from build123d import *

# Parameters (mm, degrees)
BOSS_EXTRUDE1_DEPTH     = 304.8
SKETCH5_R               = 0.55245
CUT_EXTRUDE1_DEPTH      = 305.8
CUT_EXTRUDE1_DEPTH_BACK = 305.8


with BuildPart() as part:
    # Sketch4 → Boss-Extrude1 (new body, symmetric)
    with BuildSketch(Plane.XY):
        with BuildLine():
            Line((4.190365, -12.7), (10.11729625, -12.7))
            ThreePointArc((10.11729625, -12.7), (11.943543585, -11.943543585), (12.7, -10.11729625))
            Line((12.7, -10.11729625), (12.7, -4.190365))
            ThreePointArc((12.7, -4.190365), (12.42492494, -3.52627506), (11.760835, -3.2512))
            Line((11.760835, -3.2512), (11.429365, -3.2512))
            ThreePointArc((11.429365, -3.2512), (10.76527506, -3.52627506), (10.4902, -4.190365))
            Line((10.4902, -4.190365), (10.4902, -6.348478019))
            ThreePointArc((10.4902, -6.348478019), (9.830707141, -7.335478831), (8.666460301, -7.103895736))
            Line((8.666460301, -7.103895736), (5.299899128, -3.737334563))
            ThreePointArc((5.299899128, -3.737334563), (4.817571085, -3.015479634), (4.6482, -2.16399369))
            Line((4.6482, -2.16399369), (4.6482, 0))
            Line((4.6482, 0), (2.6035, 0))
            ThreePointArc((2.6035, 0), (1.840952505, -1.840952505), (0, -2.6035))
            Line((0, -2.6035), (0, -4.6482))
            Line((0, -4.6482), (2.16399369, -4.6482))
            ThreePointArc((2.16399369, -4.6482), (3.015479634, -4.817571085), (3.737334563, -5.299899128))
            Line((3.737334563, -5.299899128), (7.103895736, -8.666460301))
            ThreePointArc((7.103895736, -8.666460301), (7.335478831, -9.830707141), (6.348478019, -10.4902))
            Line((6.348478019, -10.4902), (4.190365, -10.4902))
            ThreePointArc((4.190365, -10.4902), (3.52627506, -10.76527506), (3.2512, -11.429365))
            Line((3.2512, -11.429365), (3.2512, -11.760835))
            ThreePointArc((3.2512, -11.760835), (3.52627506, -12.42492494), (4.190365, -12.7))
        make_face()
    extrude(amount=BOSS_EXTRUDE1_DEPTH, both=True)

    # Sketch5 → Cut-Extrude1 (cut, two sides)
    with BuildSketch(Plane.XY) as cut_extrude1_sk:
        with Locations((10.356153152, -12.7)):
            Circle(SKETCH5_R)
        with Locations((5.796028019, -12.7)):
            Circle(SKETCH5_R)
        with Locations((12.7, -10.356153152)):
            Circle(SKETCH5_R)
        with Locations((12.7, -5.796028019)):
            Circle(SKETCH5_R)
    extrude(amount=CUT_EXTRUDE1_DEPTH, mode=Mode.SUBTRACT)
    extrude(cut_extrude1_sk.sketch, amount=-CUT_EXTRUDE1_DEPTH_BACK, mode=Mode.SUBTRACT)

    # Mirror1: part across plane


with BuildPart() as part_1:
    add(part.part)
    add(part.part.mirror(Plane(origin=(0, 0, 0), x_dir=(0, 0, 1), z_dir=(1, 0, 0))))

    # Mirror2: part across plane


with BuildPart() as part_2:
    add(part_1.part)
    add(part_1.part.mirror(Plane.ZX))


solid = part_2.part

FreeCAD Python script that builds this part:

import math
import FreeCAD as App
import Part
import Sketcher
Q = App.Units.Quantity

doc = App.newDocument("Part")
body = doc.addObject("PartDesign::Body", "Body")

# Sketch on XY plane
sketch1 = doc.addObject("Sketcher::SketchObject", "Sketch")
body.addObject(sketch1)
sketch1.AttachmentSupport = (doc.XY_Plane, [""])
sketch1.MapMode = "FlatFace"
sketch1.addGeometry([
    Part.LineSegment(App.Vector(4.190365, -12.7, 0), App.Vector(10.117296, -12.7, 0)),  # 0
    Part.ArcOfCircle(Part.Circle(App.Vector(10.117296, -10.117296, 0), App.Vector(0, 0, 1), 2.582704), math.radians(-90), math.radians(0)),  # 1
    Part.LineSegment(App.Vector(12.7, -10.117296, 0), App.Vector(12.7, -4.190365, 0)),  # 2
    Part.ArcOfCircle(Part.Circle(App.Vector(11.760835, -4.190365, 0), App.Vector(0, 0, 1), 0.939165), math.radians(0), math.radians(90)),  # 3
    Part.LineSegment(App.Vector(11.760835, -3.2512, 0), App.Vector(11.429365, -3.2512, 0)),  # 4
    Part.ArcOfCircle(Part.Circle(App.Vector(11.429365, -4.190365, 0), App.Vector(0, 0, 1), 0.939165), math.radians(90), math.radians(180)),  # 5
    Part.LineSegment(App.Vector(10.4902, -4.190365, 0), App.Vector(10.4902, -6.348478, 0)),  # 6
    Part.ArcOfCircle(Part.Circle(App.Vector(9.421878, -6.348478, 0), App.Vector(0, 0, 1), 1.068322), math.radians(-135), math.radians(0)),  # 7
    Part.LineSegment(App.Vector(8.66646, -7.103896, 0), App.Vector(5.299899, -3.737335, 0)),  # 8
    Part.ArcOfCircle(Part.Circle(App.Vector(6.87324, -2.163994, 0), App.Vector(0, 0, 1), 2.22504), math.radians(-180), math.radians(-135)),  # 9
    Part.LineSegment(App.Vector(4.6482, -2.163994, 0), App.Vector(4.6482, 0, 0)),  # 10
    Part.LineSegment(App.Vector(4.6482, 0, 0), App.Vector(2.6035, 0, 0)),  # 11
    Part.ArcOfCircle(Part.Circle(App.Vector(0, 0, 0), App.Vector(0, 0, 1), 2.6035), math.radians(-90), math.radians(0)),  # 12
    Part.LineSegment(App.Vector(0, -2.6035, 0), App.Vector(0, -4.6482, 0)),  # 13
    Part.LineSegment(App.Vector(0, -4.6482, 0), App.Vector(2.163994, -4.6482, 0)),  # 14
    Part.ArcOfCircle(Part.Circle(App.Vector(2.163994, -6.87324, 0), App.Vector(0, 0, 1), 2.22504), math.radians(45), math.radians(90)),  # 15
    Part.LineSegment(App.Vector(3.737335, -5.299899, 0), App.Vector(7.103896, -8.66646, 0)),  # 16
    Part.ArcOfCircle(Part.Circle(App.Vector(6.348478, -9.421878, 0), App.Vector(0, 0, 1), 1.068322), math.radians(-90), math.radians(45)),  # 17
    Part.LineSegment(App.Vector(6.348478, -10.4902, 0), App.Vector(4.190365, -10.4902, 0)),  # 18
    Part.ArcOfCircle(Part.Circle(App.Vector(4.190365, -11.429365, 0), App.Vector(0, 0, 1), 0.939165), math.radians(90), math.radians(180)),  # 19
    Part.LineSegment(App.Vector(3.2512, -11.429365, 0), App.Vector(3.2512, -11.760835, 0)),  # 20
    Part.ArcOfCircle(Part.Circle(App.Vector(4.190365, -11.760835, 0), App.Vector(0, 0, 1), 0.939165), math.radians(-180), math.radians(-90)),  # 21
], False)
sketch1.addConstraint([
    Sketcher.Constraint("Tangent", 0, 2, 1, 1),
    Sketcher.Constraint("Tangent", 1, 2, 2, 1),
    Sketcher.Constraint("Tangent", 2, 2, 3, 1),
    Sketcher.Constraint("Tangent", 3, 2, 4, 1),
    Sketcher.Constraint("Tangent", 4, 2, 5, 1),
    Sketcher.Constraint("Tangent", 5, 2, 6, 1),
    Sketcher.Constraint("Tangent", 6, 2, 7, 2),
    Sketcher.Constraint("Tangent", 7, 1, 8, 1),
    Sketcher.Constraint("Tangent", 8, 2, 9, 2),
    Sketcher.Constraint("Tangent", 9, 1, 10, 1),
    Sketcher.Constraint("Coincident", 10, 2, 11, 1),
    Sketcher.Constraint("Coincident", 11, 2, 12, 2),
    Sketcher.Constraint("Coincident", 12, 1, 13, 1),
    Sketcher.Constraint("Coincident", 13, 2, 14, 1),
    Sketcher.Constraint("Tangent", 14, 2, 15, 2),
    Sketcher.Constraint("Tangent", 15, 1, 16, 1),
    Sketcher.Constraint("Tangent", 16, 2, 17, 2),
    Sketcher.Constraint("Tangent", 17, 1, 18, 1),
    Sketcher.Constraint("Tangent", 18, 2, 19, 1),
    Sketcher.Constraint("Tangent", 19, 2, 20, 1),
    Sketcher.Constraint("Tangent", 20, 2, 21, 1),
    Sketcher.Constraint("Tangent", 21, 2, 0, 1),
    Sketcher.Constraint("Horizontal", 0),
    Sketcher.Constraint("Vertical", 2),
    Sketcher.Constraint("Horizontal", 4),
    Sketcher.Constraint("Vertical", 6),
    Sketcher.Constraint("Vertical", 10),
    Sketcher.Constraint("Horizontal", 11),
    Sketcher.Constraint("Vertical", 13),
    Sketcher.Constraint("Horizontal", 14),
    Sketcher.Constraint("Horizontal", 18),
    Sketcher.Constraint("Vertical", 20),
    Sketcher.Constraint("Coincident", 12, 3, -1, 1),
    Sketcher.Constraint("Equal", 3, 5),
    Sketcher.Constraint("Equal", 9, 15),
    Sketcher.Constraint("Equal", 7, 17),
    Sketcher.Constraint("Equal", 5, 19),
    Sketcher.Constraint("Equal", 19, 21),
    Sketcher.Constraint("PointOnObject", 10, 2, -1),
    Sketcher.Constraint("PointOnObject", 12, 1, -2),
    Sketcher.Constraint("Parallel", 8, 16),
    Sketcher.Constraint("Equal", 0, 2),
    Sketcher.Constraint("Equal", 18, 6),
    Sketcher.Constraint("Equal", 14, 10),
    Sketcher.Constraint("Equal", 11, 13),
    Sketcher.Constraint("Equal", 4, 20),
    Sketcher.Constraint("Equal", 8, 16),
    Sketcher.Constraint("DistanceY", 0, 2, -1, 1, Q("0.5 in")),
    Sketcher.Constraint("Radius", 9, Q("0.0876 in")),
    Sketcher.Constraint("Radius", 12, Q("0.1025 in")),
    Sketcher.Constraint("DistanceX", 9, 1, 5, 2, Q("0.23 in")),
    Sketcher.Constraint("DistanceX", 11, 2, 11, 1, Q("0.0805 in")),
    Sketcher.Constraint("DistanceY", 3, 2, -1, 1, Q("0.128 in")),
    Sketcher.Constraint("Radius", 7, 1.068322),
    Sketcher.Constraint("DistanceX", 17, 3, 7, 3, Q("0.121 in")),
    Sketcher.Constraint("Radius", 1, 2.582704),
    Sketcher.Constraint("Radius", 3, 0.939165),
])
pad1 = doc.addObject("PartDesign::Pad", "Pad")
body.addObject(pad1)
pad1.Profile = sketch1
pad1.Length = Q("24 in")
pad1.Midplane = True

# Sketch on XY plane
sketch2 = doc.addObject("Sketcher::SketchObject", "Sketch001")
body.addObject(sketch2)
sketch2.AttachmentSupport = (doc.XY_Plane, [""])
sketch2.MapMode = "FlatFace"
sketch2.addGeometry([
    Part.Circle(App.Vector(10.356153, -12.7, 0), App.Vector(0, 0, 1), 0.55245),
    Part.Circle(App.Vector(5.796028, -12.7, 0), App.Vector(0, 0, 1), 0.55245),
    Part.Circle(App.Vector(12.7, -10.356153, 0), App.Vector(0, 0, 1), 0.55245),
    Part.Circle(App.Vector(12.7, -5.796028, 0), App.Vector(0, 0, 1), 0.55245),
], False)
sketch2.addConstraint([
    Sketcher.Constraint("Equal", 0, 1),
    Sketcher.Constraint("Equal", 1, 2),
    Sketcher.Constraint("Equal", 2, 3),
    Sketcher.Constraint("Horizontal", 0, 3, 1, 3),
    Sketcher.Constraint("Vertical", 2, 3, 3, 3),
    Sketcher.Constraint("Diameter", 0, Q("0.0435 in")),
    Sketcher.Constraint("DistanceY", 0, 3, -1, 1, Q("0.5 in")),
    Sketcher.Constraint("DistanceX", -1, 1, 2, 3, Q("0.5 in")),
    Sketcher.Constraint("DistanceX", -1, 1, 1, 3, 5.796028),
    Sketcher.Constraint("DistanceY", 3, 3, -1, 1, 5.796028),
    Sketcher.Constraint("DistanceX", -1, 1, 0, 3, 10.356153),
    Sketcher.Constraint("DistanceY", 2, 3, -1, 1, 10.356153),
])
pocket1 = doc.addObject("PartDesign::Pocket", "Pocket")
body.addObject(pocket1)
pocket1.Profile = sketch2
pocket1.Type = "ThroughAll"
pocket1.Midplane = True
body2 = doc.addObject("PartDesign::Body", "Body001")
doc.recompute()

body2.BaseFeature = body
doc.recompute()

mirroring = doc.addObject("Part::Mirroring", "Mirroring")
mirroring.Source = body
mirroring.Base = App.Vector(0, 0, 0)
mirroring.Normal = App.Vector(1, 0, 0)
body3 = doc.addObject("PartDesign::Body", "Body002")
body3.BaseFeature = mirroring
boolean = doc.addObject("PartDesign::Boolean", "Boolean")
body2.addObject(boolean)
boolean.Type = "Fuse"
boolean.addObjects([body3])
doc.recompute()
body4 = doc.addObject("PartDesign::Body", "Body003")
doc.recompute()

body4.BaseFeature = body2
doc.recompute()

mirroring2 = doc.addObject("Part::Mirroring", "Mirroring001")
mirroring2.Source = body2
mirroring2.Base = App.Vector(0, 0, 0)
mirroring2.Normal = App.Vector(0, 1, 0)
body5 = doc.addObject("PartDesign::Body", "Body004")
body5.BaseFeature = mirroring2
boolean2 = doc.addObject("PartDesign::Boolean", "Boolean001")
body4.addObject(boolean2)
boolean2.Type = "Fuse"
boolean2.addObjects([body5])
doc.recompute()
mirroring.Visibility = False
mirroring2.Visibility = False

doc.recompute()
